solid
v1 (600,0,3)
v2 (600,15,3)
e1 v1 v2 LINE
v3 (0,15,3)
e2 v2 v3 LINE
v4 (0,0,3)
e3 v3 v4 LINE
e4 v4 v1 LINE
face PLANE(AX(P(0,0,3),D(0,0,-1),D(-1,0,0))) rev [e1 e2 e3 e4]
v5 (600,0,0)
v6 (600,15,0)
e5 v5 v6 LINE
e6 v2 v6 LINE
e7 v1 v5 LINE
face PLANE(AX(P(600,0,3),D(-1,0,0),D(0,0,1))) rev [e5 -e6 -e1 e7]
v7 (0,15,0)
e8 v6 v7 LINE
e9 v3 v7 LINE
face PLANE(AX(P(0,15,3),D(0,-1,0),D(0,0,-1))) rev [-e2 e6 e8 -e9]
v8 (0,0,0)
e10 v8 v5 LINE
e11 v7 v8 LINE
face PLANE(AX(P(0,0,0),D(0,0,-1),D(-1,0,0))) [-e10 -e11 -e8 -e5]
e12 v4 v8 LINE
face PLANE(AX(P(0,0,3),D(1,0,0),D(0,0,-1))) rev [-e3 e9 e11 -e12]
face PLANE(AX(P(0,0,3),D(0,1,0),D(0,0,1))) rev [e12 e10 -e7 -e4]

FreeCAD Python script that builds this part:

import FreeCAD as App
import Part
import Sketcher
Q = App.Units.Quantity

doc = App.newDocument("Part")
body = doc.addObject("PartDesign::Body", "Body")

sketch1 = body.newObject("Sketcher::SketchObject", "Sketch")
sketch1.AttachmentSupport = (doc.getObject("XY_Plane"), [""])
sketch1.MapMode = "FlatFace"
sketch1.addGeometry(Part.LineSegment(App.Vector(0, 15, 0), App.Vector(0, 0, 0)), False)
sketch1.addGeometry(Part.LineSegment(App.Vector(0, 0, 0), App.Vector(600, 0, 0)), False)
sketch1.addGeometry(Part.LineSegment(App.Vector(600, 0, 0), App.Vector(600, 15, 0)), False)
sketch1.addGeometry(Part.LineSegment(App.Vector(600, 15, 0), App.Vector(0, 15, 0)), False)
sketch1.addConstraint(Sketcher.Constraint("Coincident", 0, 2, 1, 1))
sketch1.addConstraint(Sketcher.Constraint("Coincident", 1, 2, 2, 1))
sketch1.addConstraint(Sketcher.Constraint("Coincident", 2, 2, 3, 1))
sketch1.addConstraint(Sketcher.Constraint("Coincident", 3, 2, 0, 1))
sketch1.addConstraint(Sketcher.Constraint("Vertical", 0))
sketch1.addConstraint(Sketcher.Constraint("Horizontal", 1))
sketch1.addConstraint(Sketcher.Constraint("Vertical", 2))
sketch1.addConstraint(Sketcher.Constraint("Horizontal", 3))
sketch1.addConstraint(Sketcher.Constraint("Coincident", 0, 2, -1, 1))
sketch1.addConstraint(Sketcher.Constraint("DistanceX", 1, 1, 1, 2, Q("600 mm")))
sketch1.addConstraint(Sketcher.Constraint("DistanceY", 0, 2, 0, 1, Q("15 mm")))
pad1 = body.newObject("PartDesign::Pad", "Pad")
pad1.Profile = sketch1
pad1.Length = 3

doc.recompute()
